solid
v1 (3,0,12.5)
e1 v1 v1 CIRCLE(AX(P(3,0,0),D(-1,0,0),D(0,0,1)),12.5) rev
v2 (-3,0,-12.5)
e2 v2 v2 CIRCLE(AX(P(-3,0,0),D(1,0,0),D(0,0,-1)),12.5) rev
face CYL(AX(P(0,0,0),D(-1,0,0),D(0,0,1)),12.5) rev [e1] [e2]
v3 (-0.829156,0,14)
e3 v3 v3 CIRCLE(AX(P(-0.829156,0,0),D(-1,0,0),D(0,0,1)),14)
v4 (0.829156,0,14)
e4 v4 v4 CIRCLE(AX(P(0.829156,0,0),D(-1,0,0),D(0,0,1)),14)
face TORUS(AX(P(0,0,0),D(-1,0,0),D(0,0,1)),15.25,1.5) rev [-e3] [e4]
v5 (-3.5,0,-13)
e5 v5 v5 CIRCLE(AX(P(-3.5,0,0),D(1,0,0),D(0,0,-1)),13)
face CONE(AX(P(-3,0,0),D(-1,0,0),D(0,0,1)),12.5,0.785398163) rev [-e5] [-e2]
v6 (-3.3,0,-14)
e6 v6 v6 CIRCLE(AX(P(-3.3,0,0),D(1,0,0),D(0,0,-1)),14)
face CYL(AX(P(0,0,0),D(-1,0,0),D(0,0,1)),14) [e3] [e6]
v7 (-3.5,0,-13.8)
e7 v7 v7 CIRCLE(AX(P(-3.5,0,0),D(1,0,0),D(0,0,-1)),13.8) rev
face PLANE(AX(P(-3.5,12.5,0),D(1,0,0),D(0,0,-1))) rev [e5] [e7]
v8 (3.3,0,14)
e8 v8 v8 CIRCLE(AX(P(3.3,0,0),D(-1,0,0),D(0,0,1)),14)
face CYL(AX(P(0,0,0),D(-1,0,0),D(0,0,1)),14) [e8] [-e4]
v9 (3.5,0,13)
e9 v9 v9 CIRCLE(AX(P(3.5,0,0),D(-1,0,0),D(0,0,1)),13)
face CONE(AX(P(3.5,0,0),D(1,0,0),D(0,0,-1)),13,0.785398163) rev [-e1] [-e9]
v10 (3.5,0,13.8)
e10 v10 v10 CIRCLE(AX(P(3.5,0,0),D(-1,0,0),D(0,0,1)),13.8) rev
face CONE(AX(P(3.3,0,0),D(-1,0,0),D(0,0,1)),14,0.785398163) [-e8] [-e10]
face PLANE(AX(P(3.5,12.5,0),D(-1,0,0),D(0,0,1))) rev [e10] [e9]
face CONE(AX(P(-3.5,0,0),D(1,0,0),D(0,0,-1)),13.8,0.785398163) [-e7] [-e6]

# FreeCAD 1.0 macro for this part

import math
import FreeCAD as App
import Part
import Sketcher
from FreeCAD import Vector
Q = App.Units.Quantity


def edges_at(feature, points):
    """Names of the edges that pass closest to the given points."""
    edges = feature.Shape.Edges
    near = lambda p: min(range(len(edges)), key=lambda i: edges[i].distToShape(Part.Vertex(*p))[0])
    return sorted({f"Edge{near(p) + 1}" for p in points})

doc = App.newDocument("Part")
params = doc.addObject("Spreadsheet::Sheet", "Params")
for row, (alias, value) in enumerate([
    ("sketch1_radius", "1.5 mm"),
    ("sketch1_width", "7 mm"),
    ("sketch1_height", "1.5 mm"),
    ("revolution_angle", "360 deg"),
    ("chamfer_size", "0.5 mm"),
    ("chamfer2_size", "0.2 mm"),
], start=1):
    params.set(f"A{row}", alias)
    params.set(f"B{row}", "=" + value)
    params.setAlias(f"B{row}", alias)

body = doc.addObject("PartDesign::Body", "Body")

sketch1 = body.newObject("Sketcher::SketchObject", "Sketch")
sketch1.AttachmentSupport = (doc.getObject("XY_Plane"), [""])
sketch1.MapMode = "FlatFace"
sketch1.addGeometry([
    Part.LineSegment(Vector(3.5, 14, 0), Vector(0.8, 14, 0)),
    Part.ArcOfCircle(Part.Circle(Vector(0, 15.3, 0), Vector(0, 0, 1), 1.5), math.radians(-124), math.radians(-56)),
    Part.LineSegment(Vector(-0.8, 14, 0), Vector(-3.5, 14, 0)),
    Part.LineSegment(Vector(-3.5, 14, 0), Vector(-3.5, 12.5, 0)),
    Part.LineSegment(Vector(-3.5, 12.5, 0), Vector(3.5, 12.5, 0)),
    Part.LineSegment(Vector(3.5, 12.5, 0), Vector(3.5, 14, 0)),
], False)
sketch1.addConstraint([
    Sketcher.Constraint("Coincident", 0, 2, 1, 2),
    Sketcher.Constraint("Coincident", 1, 1, 2, 1),
    Sketcher.Constraint("Coincident", 2, 2, 3, 1),
    Sketcher.Constraint("Coincident", 3, 2, 4, 1),
    Sketcher.Constraint("Coincident", 4, 2, 5, 1),
    Sketcher.Constraint("Coincident", 5, 2, 0, 1),
    Sketcher.Constraint("Horizontal", 0),
    Sketcher.Constraint("Horizontal", 2),
    Sketcher.Constraint("Vertical", 3),
    Sketcher.Constraint("Horizontal", 4),
    Sketcher.Constraint("Vertical", 5),
    Sketcher.Constraint("Symmetric", 0, 2, 1, 1, -2),
    Sketcher.Constraint("Equal", 0, 2),
    Sketcher.Constraint("Radius", 1, Q("1.5 mm")),
    Sketcher.Constraint("DistanceX", 4, 1, 4, 2, Q("7 mm")),
    Sketcher.Constraint("DistanceY", 3, 2, 3, 1, Q("1.5 mm")),
    Sketcher.Constraint("DistanceY", -1, 1, 0, 2, Q("14 mm")),
    Sketcher.Constraint("DistanceY", -1, 1, 1, 3, Q("15.25 mm")),
])
sketch1.setExpression("Constraints[13]", "Params.sketch1_radius")
sketch1.setExpression("Constraints[14]", "Params.sketch1_width")
sketch1.setExpression("Constraints[15]", "Params.sketch1_height")
revolution = body.newObject("PartDesign::Revolution", "Revolution")
revolution.Profile = sketch1
revolution.ReferenceAxis = (sketch1, ["H_Axis"])
revolution.setExpression("Angle", "Params.revolution_angle")
doc.recompute()

chamfer = body.newObject("PartDesign::Chamfer", "Chamfer")
chamfer.Base = (revolution, edges_at(revolution, [(3.5, 0, -12.5), (-3.5, 0, -12.5)]))
chamfer.setExpression("Size", "Params.chamfer_size")
doc.recompute()

chamfer2 = body.newObject("PartDesign::Chamfer", "Chamfer001")
chamfer2.Base = (chamfer, edges_at(chamfer, [(-3.5, 0, -14), (3.5, 0, -14)]))
chamfer2.setExpression("Size", "Params.chamfer2_size")

doc.recompute()
